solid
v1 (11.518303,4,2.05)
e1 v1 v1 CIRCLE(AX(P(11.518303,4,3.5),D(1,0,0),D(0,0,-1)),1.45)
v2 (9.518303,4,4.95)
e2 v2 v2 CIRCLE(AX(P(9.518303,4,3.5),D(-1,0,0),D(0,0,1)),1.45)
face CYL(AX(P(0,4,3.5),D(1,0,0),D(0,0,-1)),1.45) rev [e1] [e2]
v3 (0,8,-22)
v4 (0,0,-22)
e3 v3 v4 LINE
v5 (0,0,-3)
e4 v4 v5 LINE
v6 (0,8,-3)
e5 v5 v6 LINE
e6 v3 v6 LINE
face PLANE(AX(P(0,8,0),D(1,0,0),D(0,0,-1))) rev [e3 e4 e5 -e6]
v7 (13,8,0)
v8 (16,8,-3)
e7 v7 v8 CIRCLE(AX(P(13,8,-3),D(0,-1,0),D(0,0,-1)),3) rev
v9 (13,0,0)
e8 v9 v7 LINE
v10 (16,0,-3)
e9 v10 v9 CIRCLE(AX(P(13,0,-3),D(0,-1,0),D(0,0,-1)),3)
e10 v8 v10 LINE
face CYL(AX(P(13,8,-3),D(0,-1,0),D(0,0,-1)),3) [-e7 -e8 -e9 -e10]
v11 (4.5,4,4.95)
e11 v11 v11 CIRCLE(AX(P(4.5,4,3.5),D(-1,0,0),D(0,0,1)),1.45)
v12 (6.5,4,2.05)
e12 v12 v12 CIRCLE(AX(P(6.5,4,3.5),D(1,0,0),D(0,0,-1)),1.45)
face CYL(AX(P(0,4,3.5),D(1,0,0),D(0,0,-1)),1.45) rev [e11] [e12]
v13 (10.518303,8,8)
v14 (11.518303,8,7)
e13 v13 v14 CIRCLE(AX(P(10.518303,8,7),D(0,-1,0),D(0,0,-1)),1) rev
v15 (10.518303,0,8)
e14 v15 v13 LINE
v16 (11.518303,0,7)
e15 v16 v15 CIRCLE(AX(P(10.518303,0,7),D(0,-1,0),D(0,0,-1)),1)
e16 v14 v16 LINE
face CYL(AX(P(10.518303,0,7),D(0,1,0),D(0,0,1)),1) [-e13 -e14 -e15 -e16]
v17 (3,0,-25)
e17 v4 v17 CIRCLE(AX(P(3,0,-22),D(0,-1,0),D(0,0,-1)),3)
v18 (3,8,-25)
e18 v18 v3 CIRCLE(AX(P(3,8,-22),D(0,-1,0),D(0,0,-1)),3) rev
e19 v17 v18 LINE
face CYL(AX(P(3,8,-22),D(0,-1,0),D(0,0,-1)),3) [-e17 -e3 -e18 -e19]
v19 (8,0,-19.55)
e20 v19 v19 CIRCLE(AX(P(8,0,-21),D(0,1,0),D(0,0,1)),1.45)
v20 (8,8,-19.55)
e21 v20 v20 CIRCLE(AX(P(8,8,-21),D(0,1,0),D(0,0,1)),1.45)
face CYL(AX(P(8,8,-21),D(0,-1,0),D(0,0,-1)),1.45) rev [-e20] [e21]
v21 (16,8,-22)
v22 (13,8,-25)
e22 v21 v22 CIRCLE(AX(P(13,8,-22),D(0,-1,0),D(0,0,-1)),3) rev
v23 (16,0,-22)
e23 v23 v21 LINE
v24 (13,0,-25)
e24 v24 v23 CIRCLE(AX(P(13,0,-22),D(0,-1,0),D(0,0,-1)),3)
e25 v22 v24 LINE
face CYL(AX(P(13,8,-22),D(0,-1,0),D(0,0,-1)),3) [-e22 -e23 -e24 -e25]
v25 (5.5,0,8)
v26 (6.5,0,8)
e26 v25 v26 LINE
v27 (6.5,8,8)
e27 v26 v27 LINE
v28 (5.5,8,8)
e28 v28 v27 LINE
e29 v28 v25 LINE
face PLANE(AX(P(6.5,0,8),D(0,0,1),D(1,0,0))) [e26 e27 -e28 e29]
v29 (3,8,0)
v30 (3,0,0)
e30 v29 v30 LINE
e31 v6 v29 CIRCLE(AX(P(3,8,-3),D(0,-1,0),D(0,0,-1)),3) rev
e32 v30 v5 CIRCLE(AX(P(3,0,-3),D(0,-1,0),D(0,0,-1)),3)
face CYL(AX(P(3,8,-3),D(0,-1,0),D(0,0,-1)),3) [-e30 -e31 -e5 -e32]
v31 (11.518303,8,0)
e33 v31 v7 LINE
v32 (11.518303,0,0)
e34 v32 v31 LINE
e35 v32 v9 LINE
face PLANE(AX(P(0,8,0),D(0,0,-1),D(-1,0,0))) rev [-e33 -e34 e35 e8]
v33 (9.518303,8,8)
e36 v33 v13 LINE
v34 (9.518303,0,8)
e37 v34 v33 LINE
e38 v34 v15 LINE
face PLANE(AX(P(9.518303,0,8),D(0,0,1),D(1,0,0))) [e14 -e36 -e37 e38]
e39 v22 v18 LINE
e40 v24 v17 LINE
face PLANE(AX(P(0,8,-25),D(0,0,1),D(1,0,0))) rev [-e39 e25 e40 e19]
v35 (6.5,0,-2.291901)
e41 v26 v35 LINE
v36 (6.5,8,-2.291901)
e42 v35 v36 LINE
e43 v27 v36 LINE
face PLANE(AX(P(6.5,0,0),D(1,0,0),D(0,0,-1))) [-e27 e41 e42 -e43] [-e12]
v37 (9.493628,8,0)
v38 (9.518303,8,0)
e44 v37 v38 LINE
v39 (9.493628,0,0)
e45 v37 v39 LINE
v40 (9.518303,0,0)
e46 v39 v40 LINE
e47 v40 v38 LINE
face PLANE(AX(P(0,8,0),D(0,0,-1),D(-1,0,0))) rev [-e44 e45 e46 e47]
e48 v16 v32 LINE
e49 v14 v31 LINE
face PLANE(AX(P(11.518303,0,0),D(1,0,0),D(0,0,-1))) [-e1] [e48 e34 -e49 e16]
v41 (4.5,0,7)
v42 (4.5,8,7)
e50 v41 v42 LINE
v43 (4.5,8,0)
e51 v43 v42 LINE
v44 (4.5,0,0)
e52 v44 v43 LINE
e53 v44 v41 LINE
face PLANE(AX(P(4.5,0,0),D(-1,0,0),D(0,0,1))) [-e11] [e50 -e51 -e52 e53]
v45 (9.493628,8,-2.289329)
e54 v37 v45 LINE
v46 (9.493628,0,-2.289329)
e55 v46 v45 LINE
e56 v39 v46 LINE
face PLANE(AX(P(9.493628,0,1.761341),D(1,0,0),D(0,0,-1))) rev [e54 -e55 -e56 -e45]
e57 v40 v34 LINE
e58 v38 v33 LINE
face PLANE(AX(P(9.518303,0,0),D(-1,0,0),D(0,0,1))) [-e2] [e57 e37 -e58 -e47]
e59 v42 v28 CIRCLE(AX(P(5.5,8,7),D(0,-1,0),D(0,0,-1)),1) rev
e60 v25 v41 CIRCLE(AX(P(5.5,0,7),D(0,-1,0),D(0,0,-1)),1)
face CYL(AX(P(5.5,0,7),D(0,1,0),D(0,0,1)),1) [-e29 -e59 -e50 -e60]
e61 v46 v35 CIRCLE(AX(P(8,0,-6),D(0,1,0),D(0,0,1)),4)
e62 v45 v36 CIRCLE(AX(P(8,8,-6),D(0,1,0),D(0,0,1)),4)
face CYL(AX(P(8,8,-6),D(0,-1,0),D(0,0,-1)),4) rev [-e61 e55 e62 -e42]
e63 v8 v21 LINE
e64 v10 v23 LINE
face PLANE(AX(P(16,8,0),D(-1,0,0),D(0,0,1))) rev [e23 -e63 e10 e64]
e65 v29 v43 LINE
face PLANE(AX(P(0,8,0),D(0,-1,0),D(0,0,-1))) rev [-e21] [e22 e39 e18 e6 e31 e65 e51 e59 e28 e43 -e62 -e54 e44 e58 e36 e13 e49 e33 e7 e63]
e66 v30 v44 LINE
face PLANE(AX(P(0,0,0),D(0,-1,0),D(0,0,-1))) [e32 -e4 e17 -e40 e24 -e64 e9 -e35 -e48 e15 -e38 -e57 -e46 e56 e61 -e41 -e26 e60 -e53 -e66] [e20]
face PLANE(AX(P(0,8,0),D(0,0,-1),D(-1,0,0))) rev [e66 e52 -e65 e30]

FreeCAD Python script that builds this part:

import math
import FreeCAD as App
import Part
import Sketcher


def edges_at(feature, points):
    """Names of the edges that pass closest to the given points."""
    edges = feature.Shape.Edges
    near = lambda p: min(range(len(edges)), key=lambda i: edges[i].distToShape(Part.Vertex(*p))[0])
    return sorted({f"Edge{near(p) + 1}" for p in points})


def add_polygon(sketch, points):
    """Adds a closed chain of lines whose ends are joined by coincident constraints."""
    first, n = sketch.GeometryCount, len(points)
    for a, b in zip(points, points[1:] + points[:1]):
        sketch.addGeometry(Part.LineSegment(App.Vector(*a, 0), App.Vector(*b, 0)), False)
    for i in range(n):
        sketch.addConstraint(Sketcher.Constraint("Coincident", first + i, 2, first + (i + 1) % n, 1))

doc = App.newDocument("Part")
params = doc.addObject("Spreadsheet::Sheet", "Params")
for row, (alias, value) in enumerate([
    ("sketch1_diameter", "8 mm"),
    ("sketch1_diameter2", "2.9 mm"),
    ("sketch1_width", "16 mm"),
    ("sketch1_height", "25 mm"),
    ("pad1_length", "8 mm"),
    ("fillet_radius", "3 mm"),
    ("sketch2_width", "2 mm"),
    ("sketch2_height", "8 mm"),
    ("pad2_length", "8 mm"),
    ("fillet2_radius", "1 mm"),
    ("fillet3_radius", "1 mm"),
    ("sketch3_radius", "4 mm"),
    ("sketch4_diameter", "2.9 mm"),
], start=1):
    params.set(f"A{row}", alias)
    params.set(f"B{row}", "=" + value)
    params.setAlias(f"B{row}", alias)

body = doc.addObject("PartDesign::Body", "Body")

sketch1 = body.newObject("Sketcher::SketchObject", "Sketch")
sketch1.AttachmentSupport = (doc.getObject("XZ_Plane"), [""])
sketch1.MapMode = "FlatFace"
add_polygon(sketch1, [(0, -25), (0, 0), (16, 0), (16, -25)])
sketch1.addGeometry(Part.Circle(App.Vector(8, -6, 0), App.Vector(0, 0, 1), 4), False)
sketch1.addGeometry(Part.Circle(App.Vector(8, -21, 0), App.Vector(0, 0, 1), 1.4), False)
sketch1.addConstraint([
    Sketcher.Constraint("Vertical", 0),
    Sketcher.Constraint("Horizontal", 1),
    Sketcher.Constraint("Vertical", 2),
    Sketcher.Constraint("Horizontal", 3),
    Sketcher.Constraint("Coincident", 0, 2, -1, 1),
    Sketcher.Constraint("Vertical", 4, 3, 5, 3),
    Sketcher.Constraint("Diameter", 4, 8.0),
    Sketcher.Constraint("Diameter", 5, 2.9),
    Sketcher.Constraint("DistanceX", 1, 1, 1, 2, 16.0),
    Sketcher.Constraint("DistanceY", 0, 1, 0, 2, 25.0),
    Sketcher.Constraint("DistanceX", -1, 1, 4, 3, 8.0),
    Sketcher.Constraint("DistanceY", 4, 3, -1, 1, 6.0),
    Sketcher.Constraint("DistanceY", 5, 3, -1, 1, 21.0),
])
sketch1.setExpression("Constraints[10]", "Params.sketch1_diameter")
sketch1.setExpression("Constraints[11]", "Params.sketch1_diameter2")
sketch1.setExpression("Constraints[12]", "Params.sketch1_width")
sketch1.setExpression("Constraints[13]", "Params.sketch1_height")
pad1 = body.newObject("PartDesign::Pad", "Pad")
pad1.Profile = sketch1
pad1.setExpression("Length", "Params.pad1_length")
pad1.Reversed = True
doc.recompute()

fillet = body.newObject("PartDesign::Fillet", "Fillet")
fillet.Base = (pad1, edges_at(pad1, [
    (0, 4, -25),
    (16, 4, -25),
    (16, 4, 0),
    (0, 4, 0),
]))
fillet.setExpression("Radius", "Params.fillet_radius")

sketch2 = body.newObject("Sketcher::SketchObject", "Sketch001")
sketch2.AttachmentSupport = (doc.getObject("XZ_Plane"), [""])
sketch2.MapMode = "FlatFace"
sketch2.AttachmentOffset = App.Placement(App.Vector(0, 0, -8), App.Rotation())
add_polygon(sketch2, [(4.5, 0), (4.5, 8), (6.5, 8), (6.5, 0)])
add_polygon(sketch2, [(9.5, 0), (9.5, 8), (11.5, 8), (11.5, 0)])
sketch2.addConstraint([
    Sketcher.Constraint("Vertical", 0),
    Sketcher.Constraint("Horizontal", 1),
    Sketcher.Constraint("Vertical", 2),
    Sketcher.Constraint("Horizontal", 3),
    Sketcher.Constraint("Vertical", 4),
    Sketcher.Constraint("Horizontal", 5),
    Sketcher.Constraint("Vertical", 6),
    Sketcher.Constraint("Horizontal", 7),
    Sketcher.Constraint("PointOnObject", 2, 2, -1),
    Sketcher.Constraint("PointOnObject", 6, 2, -1),
    Sketcher.Constraint("Horizontal", 1, 2, 4, 2),
    Sketcher.Constraint("Equal", 3, 5),
    Sketcher.Constraint("DistanceX", 1, 1, 1, 2, 2.0),
    Sketcher.Constraint("DistanceY", 0, 1, 0, 2, 8.0),
    Sketcher.Constraint("DistanceX", -1, 1, 0, 2, 4.5),
    Sketcher.Constraint("DistanceX", -1, 1, 4, 2, 9.518303),
])
sketch2.setExpression("Constraints[20]", "Params.sketch2_width")
sketch2.setExpression("Constraints[21]", "Params.sketch2_height")
pad2 = body.newObject("PartDesign::Pad", "Pad001")
pad2.Profile = sketch2
pad2.setExpression("Length", "Params.pad2_length")
doc.recompute()

fillet2 = body.newObject("PartDesign::Fillet", "Fillet001")
fillet2.Base = (pad2, edges_at(pad2, [(4.5, 4, 8)]))
fillet2.setExpression("Radius", "Params.fillet2_radius")
doc.recompute()

fillet3 = body.newObject("PartDesign::Fillet", "Fillet002")
fillet3.Base = (fillet2, edges_at(fillet2, [(11.518, 4, 8)]))
fillet3.setExpression("Radius", "Params.fillet3_radius")

sketch3 = body.newObject("Sketcher::SketchObject", "Sketch002")
sketch3.AttachmentSupport = (doc.getObject("XZ_Plane"), [""])
sketch3.MapMode = "FlatFace"
sketch3.AttachmentOffset = App.Placement(App.Vector(0, 0, -8), App.Rotation())
sketch3.addGeometry([
    Part.LineSegment(App.Vector(6.5, -2.3, 0), App.Vector(6.5, 1.8, 0)),
    Part.LineSegment(App.Vector(6.5, 1.8, 0), App.Vector(9.5, 1.8, 0)),
    Part.LineSegment(App.Vector(9.5, 1.8, 0), App.Vector(9.5, -2.3, 0)),
    Part.ArcOfCircle(Part.Circle(App.Vector(8, -6, 0), App.Vector(0, 0, 1), 4), math.radians(68), math.radians(112)),
], False)
sketch3.addConstraint([
    Sketcher.Constraint("Coincident", 0, 2, 1, 1),
    Sketcher.Constraint("Coincident", 1, 2, 2, 1),
    Sketcher.Constraint("Coincident", 2, 2, 3, 1),
    Sketcher.Constraint("Coincident", 3, 2, 0, 1),
    Sketcher.Constraint("Vertical", 0),
    Sketcher.Constraint("Horizontal", 1),
    Sketcher.Constraint("Vertical", 2),
    Sketcher.Constraint("Radius", 3, 4.0),
    Sketcher.Constraint("DistanceX", -1, 1, 3, 3, 8.0),
    Sketcher.Constraint("DistanceY", 3, 3, -1, 1, 6.0),
    Sketcher.Constraint("DistanceX", -1, 1, 0, 2, 6.5),
    Sketcher.Constraint("DistanceY", 0, 1, 0, 2, 4.053242),
    Sketcher.Constraint("DistanceY", 2, 2, 2, 1, 4.05067),
])
sketch3.setExpression("Constraints[7]", "Params.sketch3_radius")
pocket1 = body.newObject("PartDesign::Pocket", "Pocket")
pocket1.Profile = sketch3
pocket1.Type = "ThroughAll"
pocket1.Reversed = True

sketch4 = body.newObject("Sketcher::SketchObject", "Sketch003")
sketch4.AttachmentSupport = (doc.getObject("YZ_Plane"), [""])
sketch4.MapMode = "FlatFace"
sketch4.AttachmentOffset = App.Placement(App.Vector(0, 0, 11.518303), App.Rotation())
sketch4.addGeometry(Part.Circle(App.Vector(4, 3.5, 0), App.Vector(0, 0, 1), 1.4), False)
sketch4.addConstraint([
    Sketcher.Constraint("Diameter", 0, 2.9),
    Sketcher.Constraint("DistanceX", -1, 1, 0, 3, 4.0),
    Sketcher.Constraint("DistanceY", -1, 1, 0, 3, 3.5),
])
sketch4.setExpression("Constraints[0]", "Params.sketch4_diameter")
pocket2 = body.newObject("PartDesign::Pocket", "Pocket001")
pocket2.Profile = sketch4
pocket2.Type = "ThroughAll"

doc.recompute()
